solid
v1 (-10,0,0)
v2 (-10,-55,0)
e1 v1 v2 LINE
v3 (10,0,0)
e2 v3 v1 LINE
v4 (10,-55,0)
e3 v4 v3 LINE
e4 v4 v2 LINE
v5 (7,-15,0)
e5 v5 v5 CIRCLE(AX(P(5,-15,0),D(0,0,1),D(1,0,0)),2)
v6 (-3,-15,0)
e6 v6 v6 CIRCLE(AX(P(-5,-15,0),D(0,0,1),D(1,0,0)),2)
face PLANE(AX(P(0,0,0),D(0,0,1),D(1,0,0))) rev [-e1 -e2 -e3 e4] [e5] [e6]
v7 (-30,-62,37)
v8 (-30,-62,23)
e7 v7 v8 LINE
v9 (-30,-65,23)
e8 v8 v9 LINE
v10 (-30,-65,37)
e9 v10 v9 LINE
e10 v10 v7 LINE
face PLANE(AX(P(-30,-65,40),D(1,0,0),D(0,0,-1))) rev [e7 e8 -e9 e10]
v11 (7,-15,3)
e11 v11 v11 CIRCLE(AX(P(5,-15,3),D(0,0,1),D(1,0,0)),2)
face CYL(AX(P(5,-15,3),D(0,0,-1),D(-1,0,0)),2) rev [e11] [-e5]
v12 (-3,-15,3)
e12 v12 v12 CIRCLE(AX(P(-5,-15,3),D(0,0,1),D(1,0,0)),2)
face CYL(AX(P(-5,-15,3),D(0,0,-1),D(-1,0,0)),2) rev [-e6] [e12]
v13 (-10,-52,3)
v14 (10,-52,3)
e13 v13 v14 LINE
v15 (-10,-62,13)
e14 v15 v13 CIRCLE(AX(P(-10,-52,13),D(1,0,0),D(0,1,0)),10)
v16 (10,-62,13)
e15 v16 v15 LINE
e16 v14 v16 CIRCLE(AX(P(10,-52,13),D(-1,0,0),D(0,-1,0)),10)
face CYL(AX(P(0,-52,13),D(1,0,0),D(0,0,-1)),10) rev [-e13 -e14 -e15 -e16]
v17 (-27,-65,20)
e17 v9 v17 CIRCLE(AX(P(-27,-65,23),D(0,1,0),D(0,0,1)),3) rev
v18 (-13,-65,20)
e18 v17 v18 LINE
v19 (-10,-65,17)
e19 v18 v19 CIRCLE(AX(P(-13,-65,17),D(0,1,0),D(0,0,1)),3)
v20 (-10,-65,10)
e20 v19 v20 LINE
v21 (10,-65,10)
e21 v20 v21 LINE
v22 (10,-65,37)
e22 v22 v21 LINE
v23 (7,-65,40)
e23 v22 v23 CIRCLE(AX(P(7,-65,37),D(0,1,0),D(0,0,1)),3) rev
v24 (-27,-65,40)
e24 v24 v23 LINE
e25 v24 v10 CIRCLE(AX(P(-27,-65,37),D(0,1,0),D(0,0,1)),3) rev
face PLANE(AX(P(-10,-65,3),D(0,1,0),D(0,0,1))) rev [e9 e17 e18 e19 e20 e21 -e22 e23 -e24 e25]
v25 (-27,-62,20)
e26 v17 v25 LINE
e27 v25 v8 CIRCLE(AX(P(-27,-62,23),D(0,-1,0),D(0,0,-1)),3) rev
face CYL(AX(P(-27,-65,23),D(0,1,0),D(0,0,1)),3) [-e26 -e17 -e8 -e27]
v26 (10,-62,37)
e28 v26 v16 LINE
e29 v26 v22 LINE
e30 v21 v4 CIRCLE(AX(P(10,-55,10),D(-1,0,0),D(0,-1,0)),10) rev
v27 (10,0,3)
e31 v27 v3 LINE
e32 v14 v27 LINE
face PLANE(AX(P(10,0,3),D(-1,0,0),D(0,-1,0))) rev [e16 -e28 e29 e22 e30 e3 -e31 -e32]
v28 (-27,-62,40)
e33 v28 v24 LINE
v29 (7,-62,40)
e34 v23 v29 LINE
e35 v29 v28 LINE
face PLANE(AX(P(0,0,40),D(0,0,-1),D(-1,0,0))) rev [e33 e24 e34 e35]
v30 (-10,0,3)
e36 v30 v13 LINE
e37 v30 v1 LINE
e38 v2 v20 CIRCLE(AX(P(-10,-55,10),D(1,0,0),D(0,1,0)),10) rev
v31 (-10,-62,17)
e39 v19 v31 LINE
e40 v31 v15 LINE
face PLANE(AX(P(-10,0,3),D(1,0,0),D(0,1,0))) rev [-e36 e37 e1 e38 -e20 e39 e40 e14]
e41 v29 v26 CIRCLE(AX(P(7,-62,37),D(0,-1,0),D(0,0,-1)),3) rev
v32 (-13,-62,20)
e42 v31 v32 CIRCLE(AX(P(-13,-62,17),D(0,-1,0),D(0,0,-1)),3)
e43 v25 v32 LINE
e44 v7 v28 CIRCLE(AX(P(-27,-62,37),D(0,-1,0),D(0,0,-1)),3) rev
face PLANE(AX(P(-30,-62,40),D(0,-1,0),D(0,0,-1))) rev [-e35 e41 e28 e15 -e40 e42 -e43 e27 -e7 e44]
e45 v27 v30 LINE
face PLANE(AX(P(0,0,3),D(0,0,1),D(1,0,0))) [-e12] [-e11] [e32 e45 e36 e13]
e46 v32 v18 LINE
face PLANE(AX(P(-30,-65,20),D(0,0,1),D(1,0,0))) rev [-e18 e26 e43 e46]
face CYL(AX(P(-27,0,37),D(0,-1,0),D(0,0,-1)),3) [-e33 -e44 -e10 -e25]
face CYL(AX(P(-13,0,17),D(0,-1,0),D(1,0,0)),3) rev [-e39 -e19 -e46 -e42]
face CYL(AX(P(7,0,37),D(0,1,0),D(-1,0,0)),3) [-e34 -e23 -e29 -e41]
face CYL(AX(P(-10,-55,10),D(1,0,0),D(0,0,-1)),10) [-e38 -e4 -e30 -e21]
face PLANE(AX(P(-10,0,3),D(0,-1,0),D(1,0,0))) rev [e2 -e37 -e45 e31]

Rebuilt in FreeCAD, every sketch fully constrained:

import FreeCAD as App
import Part
import Sketcher


def edges_at(feature, points):
    """Names of the edges that pass closest to the given points."""
    edges = feature.Shape.Edges
    near = lambda p: min(range(len(edges)), key=lambda i: edges[i].distToShape(Part.Vertex(*p))[0])
    return sorted({f"Edge{near(p) + 1}" for p in points})

doc = App.newDocument("Part")
body = doc.addObject("PartDesign::Body", "Body")

# Sketch on XY plane
sketch1 = doc.addObject("Sketcher::SketchObject", "Sketch")
body.addObject(sketch1)
sketch1.AttachmentSupport = (doc.XY_Plane, [""])
sketch1.MapMode = "FlatFace"
sketch1.addGeometry(Part.LineSegment(App.Vector(-10, 0, 0), App.Vector(-10, -65, 0)), False)
sketch1.addGeometry(Part.LineSegment(App.Vector(-10, -65, 0), App.Vector(10, -65, 0)), False)
sketch1.addGeometry(Part.LineSegment(App.Vector(10, -65, 0), App.Vector(10, 0, 0)), False)
sketch1.addGeometry(Part.LineSegment(App.Vector(10, 0, 0), App.Vector(-10, 0, 0)), False)
sketch1.addGeometry(Part.Circle(App.Vector(-5, -15, 0), App.Vector(0, 0, 1), 2), False)
sketch1.addGeometry(Part.Circle(App.Vector(5, -15, 0), App.Vector(0, 0, 1), 2), False)
sketch1.addConstraint(Sketcher.Constraint("Coincident", 0, 2, 1, 1))
sketch1.addConstraint(Sketcher.Constraint("Coincident", 1, 2, 2, 1))
sketch1.addConstraint(Sketcher.Constraint("Coincident", 2, 2, 3, 1))
sketch1.addConstraint(Sketcher.Constraint("Coincident", 3, 2, 0, 1))
sketch1.addConstraint(Sketcher.Constraint("Vertical", 0))
sketch1.addConstraint(Sketcher.Constraint("Horizontal", 1))
sketch1.addConstraint(Sketcher.Constraint("Vertical", 2))
sketch1.addConstraint(Sketcher.Constraint("Horizontal", 3))
sketch1.addConstraint(Sketcher.Constraint("Equal", 4, 5))
sketch1.addConstraint(Sketcher.Constraint("Symmetric", 2, 2, 3, 2, -1, 1))
sketch1.addConstraint(Sketcher.Constraint("Symmetric", 4, 3, 5, 3, -2))
sketch1.addConstraint(Sketcher.Constraint("Diameter", 4, 4.0))
sketch1.addConstraint(Sketcher.Constraint("DistanceX", 1, 1, 1, 2, 20.0))
sketch1.addConstraint(Sketcher.Constraint("DistanceY", 0, 2, 0, 1, 65.0))
sketch1.addConstraint(Sketcher.Constraint("DistanceX", 4, 3, -1, 1, 5.0))
sketch1.addConstraint(Sketcher.Constraint("DistanceY", 4, 3, -1, 1, 15.0))
pad1 = doc.addObject("PartDesign::Pad", "Pad")
body.addObject(pad1)
pad1.Profile = sketch1
pad1.Length = 3

# Sketch on XY plane
sketch2 = doc.addObject("Sketcher::SketchObject", "Sketch001")
body.addObject(sketch2)
sketch2.AttachmentSupport = (doc.XY_Plane, [""])
sketch2.MapMode = "FlatFace"
sketch2.addGeometry(Part.LineSegment(App.Vector(-30, -62, 0), App.Vector(-30, -65, 0)), False)
sketch2.addGeometry(Part.LineSegment(App.Vector(-30, -65, 0), App.Vector(10, -65, 0)), False)
sketch2.addGeometry(Part.LineSegment(App.Vector(10, -65, 0), App.Vector(10, -62, 0)), False)
sketch2.addGeometry(Part.LineSegment(App.Vector(10, -62, 0), App.Vector(-30, -62, 0)), False)
sketch2.addConstraint(Sketcher.Constraint("Coincident", 0, 2, 1, 1))
sketch2.addConstraint(Sketcher.Constraint("Coincident", 1, 2, 2, 1))
sketch2.addConstraint(Sketcher.Constraint("Coincident", 2, 2, 3, 1))
sketch2.addConstraint(Sketcher.Constraint("Coincident", 3, 2, 0, 1))
sketch2.addConstraint(Sketcher.Constraint("Vertical", 0))
sketch2.addConstraint(Sketcher.Constraint("Horizontal", 1))
sketch2.addConstraint(Sketcher.Constraint("Vertical", 2))
sketch2.addConstraint(Sketcher.Constraint("Horizontal", 3))
sketch2.addConstraint(Sketcher.Constraint("DistanceX", 1, 1, 1, 2, 40.0))
sketch2.addConstraint(Sketcher.Constraint("DistanceY", 0, 2, 0, 1, 3.0))
sketch2.addConstraint(Sketcher.Constraint("DistanceX", 0, 2, -1, 1, 30.0))
sketch2.addConstraint(Sketcher.Constraint("DistanceY", 0, 2, -1, 1, 65.0))
pad2 = doc.addObject("PartDesign::Pad", "Pad001")
body.addObject(pad2)
pad2.Profile = sketch2
pad2.Length = 40

# Sketch on XZ plane
sketch3 = doc.addObject("Sketcher::SketchObject", "Sketch002")
body.addObject(sketch3)
sketch3.AttachmentSupport = (doc.XZ_Plane, [""])
sketch3.MapMode = "FlatFace"
sketch3.AttachmentOffset = App.Placement(App.Vector(0, 0, 62), App.Rotation())
sketch3.addGeometry(Part.LineSegment(App.Vector(-30, 0, 0), App.Vector(-30, 20, 0)), False)
sketch3.addGeometry(Part.LineSegment(App.Vector(-30, 20, 0), App.Vector(-10, 20, 0)), False)
sketch3.addGeometry(Part.LineSegment(App.Vector(-10, 20, 0), App.Vector(-10, 0, 0)), False)
sketch3.addGeometry(Part.LineSegment(App.Vector(-10, 0, 0), App.Vector(-30, 0, 0)), False)
sketch3.addConstraint(Sketcher.Constraint("Coincident", 0, 2, 1, 1))
sketch3.addConstraint(Sketcher.Constraint("Coincident", 1, 2, 2, 1))
sketch3.addConstraint(Sketcher.Constraint("Coincident", 2, 2, 3, 1))
sketch3.addConstraint(Sketcher.Constraint("Coincident", 3, 2, 0, 1))
sketch3.addConstraint(Sketcher.Constraint("Vertical", 0))
sketch3.addConstraint(Sketcher.Constraint("Horizontal", 1))
sketch3.addConstraint(Sketcher.Constraint("Vertical", 2))
sketch3.addConstraint(Sketcher.Constraint("Horizontal", 3))
sketch3.addConstraint(Sketcher.Constraint("PointOnObject", 2, 2, -1))
sketch3.addConstraint(Sketcher.Constraint("Equal", 3, 0))
sketch3.addConstraint(Sketcher.Constraint("DistanceX", 1, 1, 1, 2, 20.0))
sketch3.addConstraint(Sketcher.Constraint("DistanceX", 0, 2, -1, 1, 30.0))
pocket1 = doc.addObject("PartDesign::Pocket", "Pocket")
body.addObject(pocket1)
pocket1.Profile = sketch3
pocket1.Length = 3
pocket1.Reversed = True
doc.recompute()

fillet = doc.addObject("PartDesign::Fillet", "Fillet")
body.addObject(fillet)
fillet.Base = (pocket1, edges_at(pocket1, [(0, -62, 3), (0, -65, 0)]))
fillet.Radius = 10
doc.recompute()

fillet2 = doc.addObject("PartDesign::Fillet", "Fillet001")
body.addObject(fillet2)
fillet2.Base = (fillet, edges_at(fillet, [
    (-30, -63.5, 40),
    (10, -63.5, 40),
    (-30, -63.5, 20),
    (-10, -63.5, 20),
]))
fillet2.Radius = 3

doc.recompute()
